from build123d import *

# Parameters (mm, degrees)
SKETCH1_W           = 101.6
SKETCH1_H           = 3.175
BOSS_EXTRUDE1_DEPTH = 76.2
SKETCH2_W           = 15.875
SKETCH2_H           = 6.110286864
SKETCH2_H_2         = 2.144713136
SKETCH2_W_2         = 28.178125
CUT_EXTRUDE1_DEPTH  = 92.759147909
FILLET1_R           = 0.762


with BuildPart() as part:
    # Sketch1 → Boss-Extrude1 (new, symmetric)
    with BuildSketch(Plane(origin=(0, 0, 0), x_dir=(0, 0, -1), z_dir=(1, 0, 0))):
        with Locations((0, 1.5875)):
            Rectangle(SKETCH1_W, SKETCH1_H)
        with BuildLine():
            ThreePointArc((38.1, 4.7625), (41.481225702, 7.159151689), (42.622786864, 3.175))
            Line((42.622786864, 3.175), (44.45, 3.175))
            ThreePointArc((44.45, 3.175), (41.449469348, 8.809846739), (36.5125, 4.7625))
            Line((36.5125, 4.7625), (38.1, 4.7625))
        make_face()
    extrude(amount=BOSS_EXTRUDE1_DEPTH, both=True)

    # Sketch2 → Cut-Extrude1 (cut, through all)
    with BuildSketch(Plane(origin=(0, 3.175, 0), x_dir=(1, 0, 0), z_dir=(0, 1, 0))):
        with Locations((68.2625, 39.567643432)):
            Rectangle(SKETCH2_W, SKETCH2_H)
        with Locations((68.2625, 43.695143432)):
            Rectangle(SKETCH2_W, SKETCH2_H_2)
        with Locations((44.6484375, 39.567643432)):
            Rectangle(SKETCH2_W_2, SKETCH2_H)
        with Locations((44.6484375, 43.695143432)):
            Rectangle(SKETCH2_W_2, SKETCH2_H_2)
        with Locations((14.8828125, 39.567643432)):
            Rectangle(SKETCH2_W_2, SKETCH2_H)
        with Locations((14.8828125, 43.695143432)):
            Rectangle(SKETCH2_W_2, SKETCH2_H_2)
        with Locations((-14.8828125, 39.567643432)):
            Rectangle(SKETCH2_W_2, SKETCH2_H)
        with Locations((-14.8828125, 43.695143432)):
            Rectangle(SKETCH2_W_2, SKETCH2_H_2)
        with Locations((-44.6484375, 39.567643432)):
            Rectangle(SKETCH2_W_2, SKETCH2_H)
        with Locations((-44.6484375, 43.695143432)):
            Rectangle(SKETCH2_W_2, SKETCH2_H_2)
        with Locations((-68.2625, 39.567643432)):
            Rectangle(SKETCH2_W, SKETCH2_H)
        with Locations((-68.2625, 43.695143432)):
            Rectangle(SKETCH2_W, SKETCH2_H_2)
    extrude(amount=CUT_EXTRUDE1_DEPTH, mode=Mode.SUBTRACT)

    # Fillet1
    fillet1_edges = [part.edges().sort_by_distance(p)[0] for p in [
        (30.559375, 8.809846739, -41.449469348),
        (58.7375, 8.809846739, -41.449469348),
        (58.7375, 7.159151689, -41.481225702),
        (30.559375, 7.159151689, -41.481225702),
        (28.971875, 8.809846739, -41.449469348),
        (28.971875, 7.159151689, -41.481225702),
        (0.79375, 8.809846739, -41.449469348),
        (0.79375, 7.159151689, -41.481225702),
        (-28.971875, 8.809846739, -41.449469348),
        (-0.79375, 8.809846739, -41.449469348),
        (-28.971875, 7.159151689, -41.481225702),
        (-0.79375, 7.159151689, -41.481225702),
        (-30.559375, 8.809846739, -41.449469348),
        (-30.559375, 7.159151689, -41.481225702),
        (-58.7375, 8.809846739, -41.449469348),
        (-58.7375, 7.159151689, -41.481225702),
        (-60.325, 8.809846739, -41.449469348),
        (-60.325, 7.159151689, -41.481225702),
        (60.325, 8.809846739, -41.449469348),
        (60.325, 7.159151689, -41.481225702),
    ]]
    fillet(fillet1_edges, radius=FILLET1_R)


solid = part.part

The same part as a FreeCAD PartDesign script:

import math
import FreeCAD as App
import Part
import Sketcher

V = App.Vector
Q = App.Units.Quantity


def edges_at(feature, points):
    """Names of the edges that pass closest to the given points."""
    edges = feature.Shape.Edges
    near = lambda p: min(range(len(edges)), key=lambda i: edges[i].distToShape(Part.Vertex(*p))[0])
    return sorted({f"Edge{near(p) + 1}" for p in points})

doc = App.newDocument("Part")
params = doc.addObject("Spreadsheet::Sheet", "Params")
for row, (alias, value) in enumerate([
    ("sketch1_radius", "0.1 in"),
    ("sketch1_height", "4 in"),
    ("sketch1_height2", "0.25 in"),
    ("sketch1_width", "0.125 in"),
    ("pad1_length", "6 in"),
    ("sketch2_width", "0.625 in"),
    ("sketch2_width2", "1.109375 in"),
    ("sketch2_height", "0.325 in"),
    ("fillet_radius", "0.03 in"),
], start=1):
    params.set(f"A{row}", alias)
    params.set(f"B{row}", "=" + value)
    params.setAlias(f"B{row}", alias)

body = doc.addObject("PartDesign::Body", "Body")

# Sketch on YZ plane
sketch1 = doc.addObject("Sketcher::SketchObject", "Sketch")
body.addObject(sketch1)
sketch1.AttachmentSupport = (doc.YZ_Plane, [""])
sketch1.MapMode = "FlatFace"
sketch1.addGeometry([
    Part.LineSegment(V(3.2, 50.8, 0), V(0, 50.8, 0)),  # 0
    Part.LineSegment(V(0, 50.8, 0), V(0, -50.8, 0)),  # 1
    Part.LineSegment(V(0, -50.8, 0), V(3.2, -50.8, 0)),  # 2
    Part.LineSegment(V(3.2, -50.8, 0), V(3.2, -44.5, 0)),  # 3
    Part.ArcOfCircle(Part.Circle(V(4.8, -40.6, 0), V(0, 0, 1), 4.1), math.radians(-113), math.radians(90)),  # 4
    Part.LineSegment(V(4.8, -36.5, 0), V(4.8, -38.1, 0)),  # 5
    Part.ArcOfCircle(Part.Circle(V(4.8, -40.6, 0), V(0, 0, 1), 2.5), math.radians(-129), math.radians(90)),  # 6
    Part.LineSegment(V(3.2, -42.6, 0), V(3.2, 50.8, 0)),  # 7
], False)
sketch1.addConstraint([
    Sketcher.Constraint("Coincident", 0, 2, 1, 1),
    Sketcher.Constraint("Coincident", 1, 2, 2, 1),
    Sketcher.Constraint("Coincident", 2, 2, 3, 1),
    Sketcher.Constraint("Coincident", 3, 2, 4, 1),
    Sketcher.Constraint("Coincident", 4, 2, 5, 1),
    Sketcher.Constraint("Coincident", 5, 2, 6, 2),
    Sketcher.Constraint("Coincident", 6, 1, 7, 1),
    Sketcher.Constraint("Coincident", 7, 2, 0, 1),
    Sketcher.Constraint("Horizontal", 0),
    Sketcher.Constraint("Vertical", 1),
    Sketcher.Constraint("Horizontal", 2),
    Sketcher.Constraint("Vertical", 3),
    Sketcher.Constraint("Vertical", 5),
    Sketcher.Constraint("Vertical", 7),
    Sketcher.Constraint("Coincident", 6, 3, 4, 3),
    Sketcher.Constraint("Symmetric", 0, 2, 1, 2, -1, 1),
    Sketcher.Constraint("Vertical", 6, 3, 4, 2),
    Sketcher.Constraint("Vertical", 3, 2, 6, 1),
    Sketcher.Constraint("Radius", 6, Q("0.1 in")),
    Sketcher.Constraint("DistanceY", 1, 2, 1, 1, Q("4 in")),
    Sketcher.Constraint("DistanceY", 3, 1, 3, 2, Q("0.25 in")),
    Sketcher.Constraint("DistanceY", 4, 3, -1, 1, Q("1.6 in")),
    Sketcher.Constraint("Radius", 4, Q("0.1625 in")),
    Sketcher.Constraint("DistanceX", 0, 2, 0, 1, Q("0.125 in")),
])
sketch1.setExpression("Constraints[18]", "Params.sketch1_radius")
sketch1.setExpression("Constraints[19]", "Params.sketch1_height")
sketch1.setExpression("Constraints[20]", "Params.sketch1_height2")
sketch1.setExpression("Constraints[23]", "Params.sketch1_width")
pad1 = doc.addObject("PartDesign::Pad", "Pad")
body.addObject(pad1)
pad1.Profile = sketch1
pad1.setExpression("Length", "Params.pad1_length")
pad1.Midplane = True

# Sketch on XZ plane
sketch2 = doc.addObject("Sketcher::SketchObject", "Sketch001")
body.addObject(sketch2)
sketch2.AttachmentSupport = (doc.XZ_Plane, [""])
sketch2.MapMode = "FlatFace"
sketch2.AttachmentOffset = App.Placement(V(0, 0, -0.125 * 25.4), App.Rotation())
sketch2.addGeometry([
    Part.LineSegment(V(60, -37, 0), V(76, -37, 0)),  # 0
    Part.LineSegment(V(76, -37, 0), V(76, -45, 0)),  # 1
    Part.LineSegment(V(76, -45, 0), V(60, -45, 0)),  # 2
    Part.LineSegment(V(60, -45, 0), V(60, -37, 0)),  # 3
    Part.LineSegment(V(31, -37, 0), V(59, -37, 0)),  # 4
    Part.LineSegment(V(59, -37, 0), V(59, -45, 0)),  # 5
    Part.LineSegment(V(59, -45, 0), V(31, -45, 0)),  # 6
    Part.LineSegment(V(31, -45, 0), V(31, -37, 0)),  # 7
    Part.LineSegment(V(1, -37, 0), V(29, -37, 0)),  # 8
    Part.LineSegment(V(29, -37, 0), V(29, -45, 0)),  # 9
    Part.LineSegment(V(29, -45, 0), V(1, -45, 0)),  # 10
    Part.LineSegment(V(1, -45, 0), V(1, -37, 0)),  # 11
    Part.LineSegment(V(-29, -37, 0), V(-1, -37, 0)),  # 12
    Part.LineSegment(V(-1, -37, 0), V(-1, -45, 0)),  # 13
    Part.LineSegment(V(-1, -45, 0), V(-29, -45, 0)),  # 14
    Part.LineSegment(V(-29, -45, 0), V(-29, -37, 0)),  # 15
    Part.LineSegment(V(-59, -37, 0), V(-31, -37, 0)),  # 16
    Part.LineSegment(V(-31, -37, 0), V(-31, -45, 0)),  # 17
    Part.LineSegment(V(-31, -45, 0), V(-59, -45, 0)),  # 18
    Part.LineSegment(V(-59, -45, 0), V(-59, -37, 0)),  # 19
    Part.LineSegment(V(-76, -37, 0), V(-60, -37, 0)),  # 20
    Part.LineSegment(V(-60, -37, 0), V(-60, -45, 0)),  # 21
    Part.LineSegment(V(-60, -45, 0), V(-76, -45, 0)),  # 22
    Part.LineSegment(V(-76, -45, 0), V(-76, -37, 0)),  # 23
], False)
sketch2.addConstraint([
    Sketcher.Constraint("Coincident", 0, 2, 1, 1),
    Sketcher.Constraint("Coincident", 1, 2, 2, 1),
    Sketcher.Constraint("Coincident", 2, 2, 3, 1),
    Sketcher.Constraint("Coincident", 3, 2, 0, 1),
    Sketcher.Constraint("Coincident", 4, 2, 5, 1),
    Sketcher.Constraint("Coincident", 5, 2, 6, 1),
    Sketcher.Constraint("Coincident", 6, 2, 7, 1),
    Sketcher.Constraint("Coincident", 7, 2, 4, 1),
    Sketcher.Constraint("Coincident", 8, 2, 9, 1),
    Sketcher.Constraint("Coincident", 9, 2, 10, 1),
    Sketcher.Constraint("Coincident", 10, 2, 11, 1),
    Sketcher.Constraint("Coincident", 11, 2, 8, 1),
    Sketcher.Constraint("Coincident", 12, 2, 13, 1),
    Sketcher.Constraint("Coincident", 13, 2, 14, 1),
    Sketcher.Constraint("Coincident", 14, 2, 15, 1),
    Sketcher.Constraint("Coincident", 15, 2, 12, 1),
    Sketcher.Constraint("Coincident", 16, 2, 17, 1),
    Sketcher.Constraint("Coincident", 17, 2, 18, 1),
    Sketcher.Constraint("Coincident", 18, 2, 19, 1),
    Sketcher.Constraint("Coincident", 19, 2, 16, 1),
    Sketcher.Constraint("Coincident", 20, 2, 21, 1),
    Sketcher.Constraint("Coincident", 21, 2, 22, 1),
    Sketcher.Constraint("Coincident", 22, 2, 23, 1),
    Sketcher.Constraint("Coincident", 23, 2, 20, 1),
    Sketcher.Constraint("Horizontal", 0),
    Sketcher.Constraint("Vertical", 1),
    Sketcher.Constraint("Horizontal", 2),
    Sketcher.Constraint("Vertical", 3),
    Sketcher.Constraint("Horizontal", 4),
    Sketcher.Constraint("Vertical", 5),
    Sketcher.Constraint("Horizontal", 6),
    Sketcher.Constraint("Vertical", 7),
    Sketcher.Constraint("Horizontal", 8),
    Sketcher.Constraint("Vertical", 9),
    Sketcher.Constraint("Horizontal", 10),
    Sketcher.Constraint("Vertical", 11),
    Sketcher.Constraint("Horizontal", 12),
    Sketcher.Constraint("Vertical", 13),
    Sketcher.Constraint("Horizontal", 14),
    Sketcher.Constraint("Vertical", 15),
    Sketcher.Constraint("Horizontal", 16),
    Sketcher.Constraint("Vertical", 17),
    Sketcher.Constraint("Horizontal", 18),
    Sketcher.Constraint("Vertical", 19),
    Sketcher.Constraint("Horizontal", 20),
    Sketcher.Constraint("Vertical", 21),
    Sketcher.Constraint("Horizontal", 22),
    Sketcher.Constraint("Vertical", 23),
    Sketcher.Constraint("Symmetric", 11, 2, 12, 2, -2),
    Sketcher.Constraint("Symmetric", 9, 2, 14, 2, -2),
    Sketcher.Constraint("Symmetric", 7, 2, 16, 2, -2),
    Sketcher.Constraint("Symmetric", 5, 2, 18, 2, -2),
    Sketcher.Constraint("Symmetric", 3, 2, 20, 2, -2),
    Sketcher.Constraint("Symmetric", 1, 2, 22, 2, -2),
    Sketcher.Constraint("Horizontal", 3, 2, 4, 2),
    Sketcher.Constraint("Horizontal", 2, 2, 5, 2),
    Sketcher.Constraint("Horizontal", 7, 2, 8, 2),
    Sketcher.Constraint("Horizontal", 6, 2, 9, 2),
    Sketcher.Constraint("Equal", 6, 8),
    Sketcher.Constraint("DistanceX", -1, 1, 0, 2, Q("3 in")),
    Sketcher.Constraint("DistanceX", 0, 1, 0, 2, Q("0.625 in")),
    Sketcher.Constraint("DistanceX", 4, 1, 4, 2, Q("1.109375 in")),
    Sketcher.Constraint("DistanceY", 1, 2, 1, 1, Q("0.325 in")),
    Sketcher.Constraint("DistanceY", 0, 2, -1, 1, Q("1.4375 in")),
    Sketcher.Constraint("DistanceX", -1, 1, 4, 2, Q("2.3125 in")),
    Sketcher.Constraint("DistanceX", -1, 1, 8, 2, Q("1.140625 in")),
])
sketch2.setExpression("Constraints[60]", "Params.sketch2_width")
sketch2.setExpression("Constraints[61]", "Params.sketch2_width2")
sketch2.setExpression("Constraints[62]", "Params.sketch2_height")
pocket1 = doc.addObject("PartDesign::Pocket", "Pocket")
body.addObject(pocket1)
pocket1.Profile = sketch2
pocket1.Type = "ThroughAll"
doc.recompute()

fillet = doc.addObject("PartDesign::Fillet", "Fillet")
body.addObject(fillet)
fillet.Base = (pocket1, edges_at(pocket1, [
    (30.559, 8.81, -41.449),
    (58.737, 8.81, -41.449),
    (58.737, 7.159, -41.481),
    (30.559, 7.159, -41.481),
    (28.972, 8.81, -41.449),
    (28.972, 7.159, -41.481),
    (0.794, 8.81, -41.449),
    (0.794, 7.159, -41.481),
    (-28.972, 8.81, -41.449),
    (-0.794, 8.81, -41.449),
    (-28.972, 7.159, -41.481),
    (-0.794, 7.159, -41.481),
    (-30.559, 8.81, -41.449),
    (-30.559, 7.159, -41.481),
    (-58.737, 8.81, -41.449),
    (-58.737, 7.159, -41.481),
    (-60.325, 8.81, -41.449),
    (-60.325, 7.159, -41.481),
    (60.325, 8.81, -41.449),
    (60.325, 7.159, -41.481),
]))
fillet.setExpression("Radius", "Params.fillet_radius")

doc.recompute()
